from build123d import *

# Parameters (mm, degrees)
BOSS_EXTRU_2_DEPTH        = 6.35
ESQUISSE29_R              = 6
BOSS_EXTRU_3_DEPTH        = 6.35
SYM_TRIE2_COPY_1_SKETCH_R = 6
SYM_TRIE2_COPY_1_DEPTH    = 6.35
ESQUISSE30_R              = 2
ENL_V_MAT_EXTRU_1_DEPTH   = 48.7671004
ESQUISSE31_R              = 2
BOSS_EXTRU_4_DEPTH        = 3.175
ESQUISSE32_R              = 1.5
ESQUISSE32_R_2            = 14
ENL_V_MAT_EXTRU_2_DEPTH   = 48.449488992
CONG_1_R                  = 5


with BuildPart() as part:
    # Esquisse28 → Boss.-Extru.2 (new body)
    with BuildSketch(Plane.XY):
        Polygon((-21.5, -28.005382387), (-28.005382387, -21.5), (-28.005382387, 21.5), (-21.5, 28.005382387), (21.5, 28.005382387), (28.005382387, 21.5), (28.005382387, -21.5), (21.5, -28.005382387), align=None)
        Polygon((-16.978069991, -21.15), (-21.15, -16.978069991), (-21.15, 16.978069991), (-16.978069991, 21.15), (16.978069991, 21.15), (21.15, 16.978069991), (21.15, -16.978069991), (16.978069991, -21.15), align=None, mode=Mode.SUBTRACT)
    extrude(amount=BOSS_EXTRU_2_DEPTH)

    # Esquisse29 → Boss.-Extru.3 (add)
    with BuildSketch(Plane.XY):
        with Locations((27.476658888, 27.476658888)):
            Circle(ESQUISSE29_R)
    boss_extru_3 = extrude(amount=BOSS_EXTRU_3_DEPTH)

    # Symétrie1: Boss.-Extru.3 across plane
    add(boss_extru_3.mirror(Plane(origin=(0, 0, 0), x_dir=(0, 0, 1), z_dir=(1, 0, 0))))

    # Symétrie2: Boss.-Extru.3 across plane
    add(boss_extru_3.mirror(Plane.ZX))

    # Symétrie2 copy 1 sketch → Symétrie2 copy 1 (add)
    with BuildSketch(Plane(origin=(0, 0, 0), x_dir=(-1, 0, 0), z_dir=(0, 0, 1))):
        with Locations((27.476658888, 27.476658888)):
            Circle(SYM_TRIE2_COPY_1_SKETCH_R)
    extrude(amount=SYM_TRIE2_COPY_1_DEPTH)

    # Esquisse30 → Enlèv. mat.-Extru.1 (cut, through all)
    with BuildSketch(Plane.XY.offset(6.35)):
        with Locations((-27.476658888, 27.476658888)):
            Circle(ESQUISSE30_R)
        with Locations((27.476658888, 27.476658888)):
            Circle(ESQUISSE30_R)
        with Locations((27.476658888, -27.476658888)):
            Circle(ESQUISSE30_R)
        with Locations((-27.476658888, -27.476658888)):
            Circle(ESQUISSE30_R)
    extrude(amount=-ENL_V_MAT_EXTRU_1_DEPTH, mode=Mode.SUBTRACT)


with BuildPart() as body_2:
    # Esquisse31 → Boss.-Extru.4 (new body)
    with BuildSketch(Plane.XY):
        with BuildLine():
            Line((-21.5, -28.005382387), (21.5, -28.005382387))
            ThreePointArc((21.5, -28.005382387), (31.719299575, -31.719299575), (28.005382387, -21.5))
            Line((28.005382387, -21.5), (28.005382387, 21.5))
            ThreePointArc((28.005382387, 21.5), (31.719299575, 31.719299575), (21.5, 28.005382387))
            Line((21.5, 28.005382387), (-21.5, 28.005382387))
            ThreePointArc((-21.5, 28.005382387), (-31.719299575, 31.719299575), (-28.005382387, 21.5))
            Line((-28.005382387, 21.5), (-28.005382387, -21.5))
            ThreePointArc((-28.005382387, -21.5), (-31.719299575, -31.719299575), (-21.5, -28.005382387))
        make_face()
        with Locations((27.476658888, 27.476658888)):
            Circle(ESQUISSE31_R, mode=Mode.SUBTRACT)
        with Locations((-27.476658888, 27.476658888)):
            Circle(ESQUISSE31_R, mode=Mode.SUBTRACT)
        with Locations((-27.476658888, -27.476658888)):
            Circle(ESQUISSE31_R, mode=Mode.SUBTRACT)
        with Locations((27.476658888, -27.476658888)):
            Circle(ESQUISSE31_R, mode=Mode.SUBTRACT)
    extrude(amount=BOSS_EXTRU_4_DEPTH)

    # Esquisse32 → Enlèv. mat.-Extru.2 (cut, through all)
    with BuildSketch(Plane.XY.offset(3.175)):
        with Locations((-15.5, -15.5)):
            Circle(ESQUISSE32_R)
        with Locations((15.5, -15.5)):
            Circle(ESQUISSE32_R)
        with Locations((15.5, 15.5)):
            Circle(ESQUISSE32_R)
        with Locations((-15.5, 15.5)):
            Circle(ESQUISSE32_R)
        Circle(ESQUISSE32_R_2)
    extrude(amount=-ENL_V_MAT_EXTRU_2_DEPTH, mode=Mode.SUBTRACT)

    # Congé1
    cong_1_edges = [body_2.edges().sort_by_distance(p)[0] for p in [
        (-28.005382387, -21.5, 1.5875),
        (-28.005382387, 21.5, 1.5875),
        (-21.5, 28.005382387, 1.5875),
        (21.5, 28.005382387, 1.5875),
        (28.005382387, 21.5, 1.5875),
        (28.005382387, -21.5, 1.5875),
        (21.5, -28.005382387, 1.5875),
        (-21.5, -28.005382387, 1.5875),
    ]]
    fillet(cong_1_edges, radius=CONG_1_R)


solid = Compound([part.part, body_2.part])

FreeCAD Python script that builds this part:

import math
import FreeCAD as App
import Part
import Sketcher
Q = App.Units.Quantity


def edges_at(feature, points):
    """Names of the edges that pass closest to the given points."""
    edges = feature.Shape.Edges
    near = lambda p: min(range(len(edges)), key=lambda i: edges[i].distToShape(Part.Vertex(*p))[0])
    return sorted({f"Edge{near(p) + 1}" for p in points})


def add_polygon(sketch, points):
    """Adds a closed chain of lines whose ends are joined by coincident constraints."""
    first, n = sketch.GeometryCount, len(points)
    for a, b in zip(points, points[1:] + points[:1]):
        sketch.addGeometry(Part.LineSegment(App.Vector(*a, 0), App.Vector(*b, 0)), False)
    for i in range(n):
        sketch.addConstraint(Sketcher.Constraint("Coincident", first + i, 2, first + (i + 1) % n, 1))

doc = App.newDocument("Part")
body = doc.addObject("PartDesign::Body", "Body")

# Sketch on XY plane
sketch1 = body.newObject("Sketcher::SketchObject", "Sketch")
sketch1.AttachmentSupport = (doc.getObject("XY_Plane"), [""])
sketch1.MapMode = "FlatFace"
add_polygon(sketch1, [(-28, -22), (-22, -28), (22, -28), (28, -22), (28, 22), (22, 28), (-22, 28), (-28, 22)])  # lines 0-7
add_polygon(sketch1, [(-17, -21), (-21, -17), (-21, 17), (-17, 21), (17, 21), (21, 17), (21, -17), (17, -21)])  # lines 8-15
sketch1.addConstraint([
    Sketcher.Constraint("Horizontal", 1),
    Sketcher.Constraint("Vertical", 3),
    Sketcher.Constraint("Horizontal", 5),
    Sketcher.Constraint("Vertical", 7),
    Sketcher.Constraint("Vertical", 9),
    Sketcher.Constraint("Horizontal", 11),
    Sketcher.Constraint("Vertical", 13),
    Sketcher.Constraint("Horizontal", 15),
    Sketcher.Constraint("Symmetric", 0, 2, 4, 2, -1, 1),
    Sketcher.Constraint("Symmetric", 2, 2, 6, 2, -1, 1),
    Sketcher.Constraint("Symmetric", 8, 2, 12, 2, -1, 1),
    Sketcher.Constraint("Symmetric", 10, 2, 14, 2, -1, 1),
    Sketcher.Constraint("Perpendicular", 0, 2),
    Sketcher.Constraint("Perpendicular", 2, 4),
    Sketcher.Constraint("Perpendicular", 4, 6),
    Sketcher.Constraint("Perpendicular", 6, 8),
    Sketcher.Constraint("Perpendicular", 8, 10),
    Sketcher.Constraint("Perpendicular", 10, 12),
    Sketcher.Constraint("Perpendicular", 12, 14),
    Sketcher.Constraint("Horizontal", 3, 2, 6, 2),
    Sketcher.Constraint("Horizontal", 9, 2, 12, 2),
    Sketcher.Constraint("Vertical", 1, 2, 4, 2),
    Sketcher.Constraint("Equal", 5, 3),
    Sketcher.Constraint("Equal", 15, 9),
    Sketcher.Constraint("DistanceX", 1, 1, 1, 2, Q("43 mm")),
    Sketcher.Constraint("Distance", 0, Q("9.2 mm")),
    Sketcher.Constraint("Distance", 8, Q("5.9 mm")),
    Sketcher.Constraint("DistanceX", 8, 2, -1, 1, Q("21.15 mm")),
])
pad1 = body.newObject("PartDesign::Pad", "Pad")
pad1.Profile = sketch1
pad1.Length = 6.35

# Sketch on XY plane
sketch2 = body.newObject("Sketcher::SketchObject", "Sketch001")
sketch2.AttachmentSupport = (doc.getObject("XY_Plane"), [""])
sketch2.MapMode = "FlatFace"
sketch2.addGeometry(Part.Circle(App.Vector(27, 27, 0), App.Vector(0, 0, 1), 6), False)
sketch2.addConstraint([
    Sketcher.Constraint("Diameter", 0, Q("12 mm")),
    Sketcher.Constraint("DistanceX", -1, 1, 0, 3, Q("27.476659 mm")),
    Sketcher.Constraint("DistanceY", -1, 1, 0, 3, Q("27.476659 mm")),
])
pad2 = body.newObject("PartDesign::Pad", "Pad001")
pad2.Profile = sketch2
pad2.Length = 6.35
doc.recompute()

mirrored = body.newObject("PartDesign::Mirrored", "Mirrored")
mirrored.Originals = [pad2]
mirrored.MirrorPlane = (doc.getObject("YZ_Plane"), [""])
body.Tip = mirrored
doc.recompute()

mirrored2 = body.newObject("PartDesign::Mirrored", "Mirrored001")
mirrored2.Originals = [pad2]
mirrored2.MirrorPlane = (doc.getObject("XZ_Plane"), [""])
body.Tip = mirrored2

# Sketch on XY plane
sketch3 = body.newObject("Sketcher::SketchObject", "Sketch002")
sketch3.AttachmentSupport = (doc.getObject("XY_Plane"), [""])
sketch3.MapMode = "FlatFace"
sketch3.addGeometry(Part.Circle(App.Vector(-27, -27, 0), App.Vector(0, 0, 1), 6), False)
sketch3.addConstraint([
    Sketcher.Constraint("Diameter", 0, Q("12 mm")),
    Sketcher.Constraint("DistanceX", 0, 3, -1, 1, Q("27.476659 mm")),
    Sketcher.Constraint("DistanceY", 0, 3, -1, 1, Q("27.476659 mm")),
])
pad3 = body.newObject("PartDesign::Pad", "Pad002")
pad3.Profile = sketch3
pad3.Length = 6.35

# Sketch on XY plane
sketch4 = body.newObject("Sketcher::SketchObject", "Sketch003")
sketch4.AttachmentSupport = (doc.getObject("XY_Plane"), [""])
sketch4.MapMode = "FlatFace"
sketch4.AttachmentOffset = App.Placement(App.Vector(0, 0, 6.35), App.Rotation())
sketch4.addGeometry([
    Part.Circle(App.Vector(-27.5, 27.5, 0), App.Vector(0, 0, 1), 2),
    Part.Circle(App.Vector(27.5, 27.5, 0), App.Vector(0, 0, 1), 2),
    Part.Circle(App.Vector(27.5, -27.5, 0), App.Vector(0, 0, 1), 2),
    Part.Circle(App.Vector(-27.5, -27.5, 0), App.Vector(0, 0, 1), 2),
], False)
sketch4.addConstraint([
    Sketcher.Constraint("Equal", 0, 1),
    Sketcher.Constraint("Equal", 1, 2),
    Sketcher.Constraint("Equal", 2, 3),
    Sketcher.Constraint("Symmetric", 0, 3, 2, 3, -1, 1),
    Sketcher.Constraint("Symmetric", 1, 3, 3, 3, -1, 1),
    Sketcher.Constraint("Symmetric", 0, 3, 1, 3, -2),
    Sketcher.Constraint("Diameter", 0, Q("4 mm")),
    Sketcher.Constraint("DistanceX", 0, 3, -1, 1, Q("27.476659 mm")),
    Sketcher.Constraint("DistanceY", -1, 1, 0, 3, Q("27.476659 mm")),
])
pocket1 = body.newObject("PartDesign::Pocket", "Pocket")
pocket1.Profile = sketch4
pocket1.Type = "ThroughAll"
body2 = doc.addObject("PartDesign::Body", "Body001")

# Sketch on XY plane
sketch5 = body2.newObject("Sketcher::SketchObject", "Sketch004")
sketch5.AttachmentSupport = (doc.getObject("XY_Plane001"), [""])
sketch5.MapMode = "FlatFace"
sketch5.addGeometry([
    Part.LineSegment(App.Vector(-21.5, -28, 0), App.Vector(21.5, -28, 0)),  # 0
    Part.ArcOfCircle(Part.Circle(App.Vector(27.5, -27.5, 0), App.Vector(0, 0, 1), 6), math.radians(-175), math.radians(85)),  # 1
    Part.LineSegment(App.Vector(28, -21.5, 0), App.Vector(28, 21.5, 0)),  # 2
    Part.ArcOfCircle(Part.Circle(App.Vector(27.5, 27.5, 0), App.Vector(0, 0, 1), 6), math.radians(-85), math.radians(175)),  # 3
    Part.LineSegment(App.Vector(21.5, 28, 0), App.Vector(-21.5, 28, 0)),  # 4
    Part.ArcOfCircle(Part.Circle(App.Vector(-27.5, 27.5, 0), App.Vector(0, 0, 1), 6), math.radians(5), math.radians(265)),  # 5
    Part.LineSegment(App.Vector(-28, 21.5, 0), App.Vector(-28, -21.5, 0)),  # 6
    Part.ArcOfCircle(Part.Circle(App.Vector(-27.5, -27.5, 0), App.Vector(0, 0, 1), 6), math.radians(95), math.radians(355)),  # 7
    Part.Circle(App.Vector(-27.5, -27.5, 0), App.Vector(0, 0, 1), 2),  # 8
    Part.Circle(App.Vector(27.5, -27.5, 0), App.Vector(0, 0, 1), 2),  # 9
    Part.Circle(App.Vector(-27.5, 27.5, 0), App.Vector(0, 0, 1), 2),  # 10
    Part.Circle(App.Vector(27.5, 27.5, 0), App.Vector(0, 0, 1), 2),  # 11
], False)
sketch5.addConstraint([
    Sketcher.Constraint("Coincident", 0, 2, 1, 1),
    Sketcher.Constraint("Coincident", 1, 2, 2, 1),
    Sketcher.Constraint("Coincident", 2, 2, 3, 1),
    Sketcher.Constraint("Coincident", 3, 2, 4, 1),
    Sketcher.Constraint("Coincident", 4, 2, 5, 1),
    Sketcher.Constraint("Coincident", 5, 2, 6, 1),
    Sketcher.Constraint("Coincident", 6, 2, 7, 1),
    Sketcher.Constraint("Coincident", 7, 2, 0, 1),
    Sketcher.Constraint("Horizontal", 0),
    Sketcher.Constraint("Vertical", 2),
    Sketcher.Constraint("Horizontal", 4),
    Sketcher.Constraint("Vertical", 6),
    Sketcher.Constraint("Coincident", 8, 3, 7, 3),
    Sketcher.Constraint("Coincident", 9, 3, 1, 3),
    Sketcher.Constraint("Coincident", 10, 3, 5, 3),
    Sketcher.Constraint("Coincident", 11, 3, 3, 3),
    Sketcher.Constraint("Equal", 1, 3),
    Sketcher.Constraint("Equal", 3, 5),
    Sketcher.Constraint("Equal", 5, 7),
    Sketcher.Constraint("Equal", 8, 9),
    Sketcher.Constraint("Equal", 9, 10),
    Sketcher.Constraint("Equal", 10, 11),
    Sketcher.Constraint("Symmetric", 1, 3, 5, 3, -1, 1),
    Sketcher.Constraint("Symmetric", 3, 3, 7, 3, -1, 1),
    Sketcher.Constraint("Symmetric", 3, 3, 5, 3, -2),
    Sketcher.Constraint("Horizontal", 2, 2, 5, 2),
    Sketcher.Constraint("Vertical", 0, 2, 3, 2),
    Sketcher.Constraint("Equal", 4, 2),
    Sketcher.Constraint("Diameter", 8, Q("4 mm")),
    Sketcher.Constraint("Radius", 1, Q("6 mm")),
    Sketcher.Constraint("DistanceX", 0, 1, 0, 2, Q("43 mm")),
    Sketcher.Constraint("DistanceX", -1, 1, 1, 3, Q("27.476659 mm")),
    Sketcher.Constraint("DistanceY", 1, 3, -1, 1, Q("27.476659 mm")),
])
pad4 = body2.newObject("PartDesign::Pad", "Pad003")
pad4.Profile = sketch5
pad4.Length = 3.175

# Sketch on XY plane
sketch6 = body2.newObject("Sketcher::SketchObject", "Sketch005")
sketch6.AttachmentSupport = (doc.getObject("XY_Plane001"), [""])
sketch6.MapMode = "FlatFace"
sketch6.AttachmentOffset = App.Placement(App.Vector(0, 0, 3.175), App.Rotation())
sketch6.addGeometry([
    Part.Circle(App.Vector(-15.5, -15.5, 0), App.Vector(0, 0, 1), 1.5),  # 0
    Part.Circle(App.Vector(15.5, -15.5, 0), App.Vector(0, 0, 1), 1.5),  # 1
    Part.Circle(App.Vector(15.5, 15.5, 0), App.Vector(0, 0, 1), 1.5),  # 2
    Part.Circle(App.Vector(-15.5, 15.5, 0), App.Vector(0, 0, 1), 1.5),  # 3
    Part.Circle(App.Vector(0, 0, 0), App.Vector(0, 0, 1), 14),  # 4
], False)
sketch6.addConstraint([
    Sketcher.Constraint("Coincident", 4, 3, -1, 1),
    Sketcher.Constraint("Equal", 0, 1),
    Sketcher.Constraint("Equal", 1, 2),
    Sketcher.Constraint("Equal", 2, 3),
    Sketcher.Constraint("Symmetric", 0, 3, 2, 3, -1, 1),
    Sketcher.Constraint("Symmetric", 1, 3, 3, 3, -1, 1),
    Sketcher.Constraint("Symmetric", 0, 3, 1, 3, -2),
    Sketcher.Constraint("Diameter", 0, Q("3 mm")),
    Sketcher.Constraint("Diameter", 4, Q("28 mm")),
    Sketcher.Constraint("DistanceX", 0, 3, 1, 3, Q("31 mm")),
    Sketcher.Constraint("DistanceY", 1, 3, 2, 3, Q("31 mm")),
])
pocket2 = body2.newObject("PartDesign::Pocket", "Pocket001")
pocket2.Profile = sketch6
pocket2.Type = "ThroughAll"
doc.recompute()

fillet = body2.newObject("PartDesign::Fillet", "Fillet")
fillet.Base = (pocket2, edges_at(pocket2, [
    (-28.005, -21.5, 1.587),
    (-28.005, 21.5, 1.587),
    (-21.5, 28.005, 1.587),
    (21.5, 28.005, 1.587),
    (28.005, 21.5, 1.587),
    (28.005, -21.5, 1.587),
    (21.5, -28.005, 1.587),
    (-21.5, -28.005, 1.587),
]))
fillet.Radius = 5

doc.recompute()
